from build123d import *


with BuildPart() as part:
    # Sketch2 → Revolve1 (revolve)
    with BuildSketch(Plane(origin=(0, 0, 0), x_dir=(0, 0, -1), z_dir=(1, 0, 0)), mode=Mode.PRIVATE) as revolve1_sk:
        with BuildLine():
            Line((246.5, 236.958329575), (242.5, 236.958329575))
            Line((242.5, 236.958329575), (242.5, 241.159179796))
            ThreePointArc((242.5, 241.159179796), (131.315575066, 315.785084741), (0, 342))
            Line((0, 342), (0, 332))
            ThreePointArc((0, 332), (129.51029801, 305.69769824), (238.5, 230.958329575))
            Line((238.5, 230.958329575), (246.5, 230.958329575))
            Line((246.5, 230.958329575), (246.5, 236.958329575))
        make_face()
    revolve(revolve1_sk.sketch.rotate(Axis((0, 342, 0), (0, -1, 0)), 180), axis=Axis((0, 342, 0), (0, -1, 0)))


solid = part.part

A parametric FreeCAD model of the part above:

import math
import FreeCAD as App
import Part
import Sketcher
Q = App.Units.Quantity

doc = App.newDocument("Part")
body = doc.addObject("PartDesign::Body", "Body")

# Sketch on YZ plane
sketch1 = body.newObject("Sketcher::SketchObject", "Sketch")
sketch1.AttachmentSupport = (doc.getObject("YZ_Plane"), [""])
sketch1.MapMode = "FlatFace"
sketch1.addGeometry([
    Part.LineSegment(App.Vector(237, -246.5, 0), App.Vector(237, -242.5, 0)),  # 0
    Part.LineSegment(App.Vector(237, -242.5, 0), App.Vector(241.2, -242.5, 0)),  # 1
    Part.ArcOfCircle(Part.Circle(App.Vector(0, 0, 0), App.Vector(0, 0, 1), 342), math.radians(-45), math.radians(0)),  # 2
    Part.LineSegment(App.Vector(342, 0, 0), App.Vector(332, 0, 0)),  # 3
    Part.ArcOfCircle(Part.Circle(App.Vector(0, 0, 0), App.Vector(0, 0, 1), 332), math.radians(-46), math.radians(0)),  # 4
    Part.LineSegment(App.Vector(231, -238.5, 0), App.Vector(231, -246.5, 0)),  # 5
    Part.LineSegment(App.Vector(231, -246.5, 0), App.Vector(237, -246.5, 0)),  # 6
], False)
sketch1.addConstraint([
    Sketcher.Constraint("Coincident", 0, 2, 1, 1),
    Sketcher.Constraint("Coincident", 1, 2, 2, 1),
    Sketcher.Constraint("Coincident", 2, 2, 3, 1),
    Sketcher.Constraint("Coincident", 3, 2, 4, 2),
    Sketcher.Constraint("Coincident", 4, 1, 5, 1),
    Sketcher.Constraint("Coincident", 5, 2, 6, 1),
    Sketcher.Constraint("Coincident", 6, 2, 0, 1),
    Sketcher.Constraint("Vertical", 0),
    Sketcher.Constraint("Horizontal", 1),
    Sketcher.Constraint("Horizontal", 3),
    Sketcher.Constraint("Vertical", 5),
    Sketcher.Constraint("Horizontal", 6),
    Sketcher.Constraint("Coincident", 2, 3, -1, 1),
    Sketcher.Constraint("Coincident", 4, 3, -1, 1),
    Sketcher.Constraint("PointOnObject", 2, 2, -1),
    Sketcher.Constraint("Radius", 2, Q("342 mm")),
    Sketcher.Constraint("Radius", 4, Q("332 mm")),
    Sketcher.Constraint("DistanceX", 6, 1, 6, 2, Q("6 mm")),
    Sketcher.Constraint("DistanceY", 0, 1, 0, 2, Q("4 mm")),
    Sketcher.Constraint("DistanceY", 5, 2, 5, 1, Q("8 mm")),
    Sketcher.Constraint("DistanceY", 0, 2, -1, 1, Q("242.5 mm")),
])
revolution = body.newObject("PartDesign::Revolution", "Revolution")
revolution.Profile = sketch1
revolution.ReferenceAxis = (sketch1, ["H_Axis"])
revolution.Angle = 360

doc.recompute()
